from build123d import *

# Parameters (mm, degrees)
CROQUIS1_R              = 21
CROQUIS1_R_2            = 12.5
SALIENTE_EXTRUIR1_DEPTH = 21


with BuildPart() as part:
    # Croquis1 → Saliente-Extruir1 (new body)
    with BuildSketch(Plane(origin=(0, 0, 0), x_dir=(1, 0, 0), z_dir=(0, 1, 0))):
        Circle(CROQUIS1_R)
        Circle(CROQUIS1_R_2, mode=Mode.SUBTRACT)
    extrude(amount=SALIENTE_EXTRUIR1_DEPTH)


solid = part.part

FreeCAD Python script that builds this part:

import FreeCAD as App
import Part
import Sketcher

V = App.Vector

doc = App.newDocument("Part")
body = doc.addObject("PartDesign::Body", "Body")

sketch1 = body.newObject("Sketcher::SketchObject", "Sketch")
sketch1.AttachmentSupport = (doc.getObject("XZ_Plane"), [""])
sketch1.MapMode = "FlatFace"
sketch1.addGeometry(Part.Circle(V(0, 0, 0), V(0, 0, 1), 21), False)
sketch1.addGeometry(Part.Circle(V(0, 0, 0), V(0, 0, 1), 12), False)
sketch1.addConstraint(Sketcher.Constraint("Coincident", 0, 3, -1, 1))
sketch1.addConstraint(Sketcher.Constraint("Coincident", 1, 3, -1, 1))
sketch1.addConstraint(Sketcher.Constraint("Diameter", 0, 42.0))
sketch1.addConstraint(Sketcher.Constraint("Diameter", 1, 25.0))
pad1 = body.newObject("PartDesign::Pad", "Pad")
pad1.Profile = sketch1
pad1.Length = 21
pad1.Reversed = True

doc.recompute()
